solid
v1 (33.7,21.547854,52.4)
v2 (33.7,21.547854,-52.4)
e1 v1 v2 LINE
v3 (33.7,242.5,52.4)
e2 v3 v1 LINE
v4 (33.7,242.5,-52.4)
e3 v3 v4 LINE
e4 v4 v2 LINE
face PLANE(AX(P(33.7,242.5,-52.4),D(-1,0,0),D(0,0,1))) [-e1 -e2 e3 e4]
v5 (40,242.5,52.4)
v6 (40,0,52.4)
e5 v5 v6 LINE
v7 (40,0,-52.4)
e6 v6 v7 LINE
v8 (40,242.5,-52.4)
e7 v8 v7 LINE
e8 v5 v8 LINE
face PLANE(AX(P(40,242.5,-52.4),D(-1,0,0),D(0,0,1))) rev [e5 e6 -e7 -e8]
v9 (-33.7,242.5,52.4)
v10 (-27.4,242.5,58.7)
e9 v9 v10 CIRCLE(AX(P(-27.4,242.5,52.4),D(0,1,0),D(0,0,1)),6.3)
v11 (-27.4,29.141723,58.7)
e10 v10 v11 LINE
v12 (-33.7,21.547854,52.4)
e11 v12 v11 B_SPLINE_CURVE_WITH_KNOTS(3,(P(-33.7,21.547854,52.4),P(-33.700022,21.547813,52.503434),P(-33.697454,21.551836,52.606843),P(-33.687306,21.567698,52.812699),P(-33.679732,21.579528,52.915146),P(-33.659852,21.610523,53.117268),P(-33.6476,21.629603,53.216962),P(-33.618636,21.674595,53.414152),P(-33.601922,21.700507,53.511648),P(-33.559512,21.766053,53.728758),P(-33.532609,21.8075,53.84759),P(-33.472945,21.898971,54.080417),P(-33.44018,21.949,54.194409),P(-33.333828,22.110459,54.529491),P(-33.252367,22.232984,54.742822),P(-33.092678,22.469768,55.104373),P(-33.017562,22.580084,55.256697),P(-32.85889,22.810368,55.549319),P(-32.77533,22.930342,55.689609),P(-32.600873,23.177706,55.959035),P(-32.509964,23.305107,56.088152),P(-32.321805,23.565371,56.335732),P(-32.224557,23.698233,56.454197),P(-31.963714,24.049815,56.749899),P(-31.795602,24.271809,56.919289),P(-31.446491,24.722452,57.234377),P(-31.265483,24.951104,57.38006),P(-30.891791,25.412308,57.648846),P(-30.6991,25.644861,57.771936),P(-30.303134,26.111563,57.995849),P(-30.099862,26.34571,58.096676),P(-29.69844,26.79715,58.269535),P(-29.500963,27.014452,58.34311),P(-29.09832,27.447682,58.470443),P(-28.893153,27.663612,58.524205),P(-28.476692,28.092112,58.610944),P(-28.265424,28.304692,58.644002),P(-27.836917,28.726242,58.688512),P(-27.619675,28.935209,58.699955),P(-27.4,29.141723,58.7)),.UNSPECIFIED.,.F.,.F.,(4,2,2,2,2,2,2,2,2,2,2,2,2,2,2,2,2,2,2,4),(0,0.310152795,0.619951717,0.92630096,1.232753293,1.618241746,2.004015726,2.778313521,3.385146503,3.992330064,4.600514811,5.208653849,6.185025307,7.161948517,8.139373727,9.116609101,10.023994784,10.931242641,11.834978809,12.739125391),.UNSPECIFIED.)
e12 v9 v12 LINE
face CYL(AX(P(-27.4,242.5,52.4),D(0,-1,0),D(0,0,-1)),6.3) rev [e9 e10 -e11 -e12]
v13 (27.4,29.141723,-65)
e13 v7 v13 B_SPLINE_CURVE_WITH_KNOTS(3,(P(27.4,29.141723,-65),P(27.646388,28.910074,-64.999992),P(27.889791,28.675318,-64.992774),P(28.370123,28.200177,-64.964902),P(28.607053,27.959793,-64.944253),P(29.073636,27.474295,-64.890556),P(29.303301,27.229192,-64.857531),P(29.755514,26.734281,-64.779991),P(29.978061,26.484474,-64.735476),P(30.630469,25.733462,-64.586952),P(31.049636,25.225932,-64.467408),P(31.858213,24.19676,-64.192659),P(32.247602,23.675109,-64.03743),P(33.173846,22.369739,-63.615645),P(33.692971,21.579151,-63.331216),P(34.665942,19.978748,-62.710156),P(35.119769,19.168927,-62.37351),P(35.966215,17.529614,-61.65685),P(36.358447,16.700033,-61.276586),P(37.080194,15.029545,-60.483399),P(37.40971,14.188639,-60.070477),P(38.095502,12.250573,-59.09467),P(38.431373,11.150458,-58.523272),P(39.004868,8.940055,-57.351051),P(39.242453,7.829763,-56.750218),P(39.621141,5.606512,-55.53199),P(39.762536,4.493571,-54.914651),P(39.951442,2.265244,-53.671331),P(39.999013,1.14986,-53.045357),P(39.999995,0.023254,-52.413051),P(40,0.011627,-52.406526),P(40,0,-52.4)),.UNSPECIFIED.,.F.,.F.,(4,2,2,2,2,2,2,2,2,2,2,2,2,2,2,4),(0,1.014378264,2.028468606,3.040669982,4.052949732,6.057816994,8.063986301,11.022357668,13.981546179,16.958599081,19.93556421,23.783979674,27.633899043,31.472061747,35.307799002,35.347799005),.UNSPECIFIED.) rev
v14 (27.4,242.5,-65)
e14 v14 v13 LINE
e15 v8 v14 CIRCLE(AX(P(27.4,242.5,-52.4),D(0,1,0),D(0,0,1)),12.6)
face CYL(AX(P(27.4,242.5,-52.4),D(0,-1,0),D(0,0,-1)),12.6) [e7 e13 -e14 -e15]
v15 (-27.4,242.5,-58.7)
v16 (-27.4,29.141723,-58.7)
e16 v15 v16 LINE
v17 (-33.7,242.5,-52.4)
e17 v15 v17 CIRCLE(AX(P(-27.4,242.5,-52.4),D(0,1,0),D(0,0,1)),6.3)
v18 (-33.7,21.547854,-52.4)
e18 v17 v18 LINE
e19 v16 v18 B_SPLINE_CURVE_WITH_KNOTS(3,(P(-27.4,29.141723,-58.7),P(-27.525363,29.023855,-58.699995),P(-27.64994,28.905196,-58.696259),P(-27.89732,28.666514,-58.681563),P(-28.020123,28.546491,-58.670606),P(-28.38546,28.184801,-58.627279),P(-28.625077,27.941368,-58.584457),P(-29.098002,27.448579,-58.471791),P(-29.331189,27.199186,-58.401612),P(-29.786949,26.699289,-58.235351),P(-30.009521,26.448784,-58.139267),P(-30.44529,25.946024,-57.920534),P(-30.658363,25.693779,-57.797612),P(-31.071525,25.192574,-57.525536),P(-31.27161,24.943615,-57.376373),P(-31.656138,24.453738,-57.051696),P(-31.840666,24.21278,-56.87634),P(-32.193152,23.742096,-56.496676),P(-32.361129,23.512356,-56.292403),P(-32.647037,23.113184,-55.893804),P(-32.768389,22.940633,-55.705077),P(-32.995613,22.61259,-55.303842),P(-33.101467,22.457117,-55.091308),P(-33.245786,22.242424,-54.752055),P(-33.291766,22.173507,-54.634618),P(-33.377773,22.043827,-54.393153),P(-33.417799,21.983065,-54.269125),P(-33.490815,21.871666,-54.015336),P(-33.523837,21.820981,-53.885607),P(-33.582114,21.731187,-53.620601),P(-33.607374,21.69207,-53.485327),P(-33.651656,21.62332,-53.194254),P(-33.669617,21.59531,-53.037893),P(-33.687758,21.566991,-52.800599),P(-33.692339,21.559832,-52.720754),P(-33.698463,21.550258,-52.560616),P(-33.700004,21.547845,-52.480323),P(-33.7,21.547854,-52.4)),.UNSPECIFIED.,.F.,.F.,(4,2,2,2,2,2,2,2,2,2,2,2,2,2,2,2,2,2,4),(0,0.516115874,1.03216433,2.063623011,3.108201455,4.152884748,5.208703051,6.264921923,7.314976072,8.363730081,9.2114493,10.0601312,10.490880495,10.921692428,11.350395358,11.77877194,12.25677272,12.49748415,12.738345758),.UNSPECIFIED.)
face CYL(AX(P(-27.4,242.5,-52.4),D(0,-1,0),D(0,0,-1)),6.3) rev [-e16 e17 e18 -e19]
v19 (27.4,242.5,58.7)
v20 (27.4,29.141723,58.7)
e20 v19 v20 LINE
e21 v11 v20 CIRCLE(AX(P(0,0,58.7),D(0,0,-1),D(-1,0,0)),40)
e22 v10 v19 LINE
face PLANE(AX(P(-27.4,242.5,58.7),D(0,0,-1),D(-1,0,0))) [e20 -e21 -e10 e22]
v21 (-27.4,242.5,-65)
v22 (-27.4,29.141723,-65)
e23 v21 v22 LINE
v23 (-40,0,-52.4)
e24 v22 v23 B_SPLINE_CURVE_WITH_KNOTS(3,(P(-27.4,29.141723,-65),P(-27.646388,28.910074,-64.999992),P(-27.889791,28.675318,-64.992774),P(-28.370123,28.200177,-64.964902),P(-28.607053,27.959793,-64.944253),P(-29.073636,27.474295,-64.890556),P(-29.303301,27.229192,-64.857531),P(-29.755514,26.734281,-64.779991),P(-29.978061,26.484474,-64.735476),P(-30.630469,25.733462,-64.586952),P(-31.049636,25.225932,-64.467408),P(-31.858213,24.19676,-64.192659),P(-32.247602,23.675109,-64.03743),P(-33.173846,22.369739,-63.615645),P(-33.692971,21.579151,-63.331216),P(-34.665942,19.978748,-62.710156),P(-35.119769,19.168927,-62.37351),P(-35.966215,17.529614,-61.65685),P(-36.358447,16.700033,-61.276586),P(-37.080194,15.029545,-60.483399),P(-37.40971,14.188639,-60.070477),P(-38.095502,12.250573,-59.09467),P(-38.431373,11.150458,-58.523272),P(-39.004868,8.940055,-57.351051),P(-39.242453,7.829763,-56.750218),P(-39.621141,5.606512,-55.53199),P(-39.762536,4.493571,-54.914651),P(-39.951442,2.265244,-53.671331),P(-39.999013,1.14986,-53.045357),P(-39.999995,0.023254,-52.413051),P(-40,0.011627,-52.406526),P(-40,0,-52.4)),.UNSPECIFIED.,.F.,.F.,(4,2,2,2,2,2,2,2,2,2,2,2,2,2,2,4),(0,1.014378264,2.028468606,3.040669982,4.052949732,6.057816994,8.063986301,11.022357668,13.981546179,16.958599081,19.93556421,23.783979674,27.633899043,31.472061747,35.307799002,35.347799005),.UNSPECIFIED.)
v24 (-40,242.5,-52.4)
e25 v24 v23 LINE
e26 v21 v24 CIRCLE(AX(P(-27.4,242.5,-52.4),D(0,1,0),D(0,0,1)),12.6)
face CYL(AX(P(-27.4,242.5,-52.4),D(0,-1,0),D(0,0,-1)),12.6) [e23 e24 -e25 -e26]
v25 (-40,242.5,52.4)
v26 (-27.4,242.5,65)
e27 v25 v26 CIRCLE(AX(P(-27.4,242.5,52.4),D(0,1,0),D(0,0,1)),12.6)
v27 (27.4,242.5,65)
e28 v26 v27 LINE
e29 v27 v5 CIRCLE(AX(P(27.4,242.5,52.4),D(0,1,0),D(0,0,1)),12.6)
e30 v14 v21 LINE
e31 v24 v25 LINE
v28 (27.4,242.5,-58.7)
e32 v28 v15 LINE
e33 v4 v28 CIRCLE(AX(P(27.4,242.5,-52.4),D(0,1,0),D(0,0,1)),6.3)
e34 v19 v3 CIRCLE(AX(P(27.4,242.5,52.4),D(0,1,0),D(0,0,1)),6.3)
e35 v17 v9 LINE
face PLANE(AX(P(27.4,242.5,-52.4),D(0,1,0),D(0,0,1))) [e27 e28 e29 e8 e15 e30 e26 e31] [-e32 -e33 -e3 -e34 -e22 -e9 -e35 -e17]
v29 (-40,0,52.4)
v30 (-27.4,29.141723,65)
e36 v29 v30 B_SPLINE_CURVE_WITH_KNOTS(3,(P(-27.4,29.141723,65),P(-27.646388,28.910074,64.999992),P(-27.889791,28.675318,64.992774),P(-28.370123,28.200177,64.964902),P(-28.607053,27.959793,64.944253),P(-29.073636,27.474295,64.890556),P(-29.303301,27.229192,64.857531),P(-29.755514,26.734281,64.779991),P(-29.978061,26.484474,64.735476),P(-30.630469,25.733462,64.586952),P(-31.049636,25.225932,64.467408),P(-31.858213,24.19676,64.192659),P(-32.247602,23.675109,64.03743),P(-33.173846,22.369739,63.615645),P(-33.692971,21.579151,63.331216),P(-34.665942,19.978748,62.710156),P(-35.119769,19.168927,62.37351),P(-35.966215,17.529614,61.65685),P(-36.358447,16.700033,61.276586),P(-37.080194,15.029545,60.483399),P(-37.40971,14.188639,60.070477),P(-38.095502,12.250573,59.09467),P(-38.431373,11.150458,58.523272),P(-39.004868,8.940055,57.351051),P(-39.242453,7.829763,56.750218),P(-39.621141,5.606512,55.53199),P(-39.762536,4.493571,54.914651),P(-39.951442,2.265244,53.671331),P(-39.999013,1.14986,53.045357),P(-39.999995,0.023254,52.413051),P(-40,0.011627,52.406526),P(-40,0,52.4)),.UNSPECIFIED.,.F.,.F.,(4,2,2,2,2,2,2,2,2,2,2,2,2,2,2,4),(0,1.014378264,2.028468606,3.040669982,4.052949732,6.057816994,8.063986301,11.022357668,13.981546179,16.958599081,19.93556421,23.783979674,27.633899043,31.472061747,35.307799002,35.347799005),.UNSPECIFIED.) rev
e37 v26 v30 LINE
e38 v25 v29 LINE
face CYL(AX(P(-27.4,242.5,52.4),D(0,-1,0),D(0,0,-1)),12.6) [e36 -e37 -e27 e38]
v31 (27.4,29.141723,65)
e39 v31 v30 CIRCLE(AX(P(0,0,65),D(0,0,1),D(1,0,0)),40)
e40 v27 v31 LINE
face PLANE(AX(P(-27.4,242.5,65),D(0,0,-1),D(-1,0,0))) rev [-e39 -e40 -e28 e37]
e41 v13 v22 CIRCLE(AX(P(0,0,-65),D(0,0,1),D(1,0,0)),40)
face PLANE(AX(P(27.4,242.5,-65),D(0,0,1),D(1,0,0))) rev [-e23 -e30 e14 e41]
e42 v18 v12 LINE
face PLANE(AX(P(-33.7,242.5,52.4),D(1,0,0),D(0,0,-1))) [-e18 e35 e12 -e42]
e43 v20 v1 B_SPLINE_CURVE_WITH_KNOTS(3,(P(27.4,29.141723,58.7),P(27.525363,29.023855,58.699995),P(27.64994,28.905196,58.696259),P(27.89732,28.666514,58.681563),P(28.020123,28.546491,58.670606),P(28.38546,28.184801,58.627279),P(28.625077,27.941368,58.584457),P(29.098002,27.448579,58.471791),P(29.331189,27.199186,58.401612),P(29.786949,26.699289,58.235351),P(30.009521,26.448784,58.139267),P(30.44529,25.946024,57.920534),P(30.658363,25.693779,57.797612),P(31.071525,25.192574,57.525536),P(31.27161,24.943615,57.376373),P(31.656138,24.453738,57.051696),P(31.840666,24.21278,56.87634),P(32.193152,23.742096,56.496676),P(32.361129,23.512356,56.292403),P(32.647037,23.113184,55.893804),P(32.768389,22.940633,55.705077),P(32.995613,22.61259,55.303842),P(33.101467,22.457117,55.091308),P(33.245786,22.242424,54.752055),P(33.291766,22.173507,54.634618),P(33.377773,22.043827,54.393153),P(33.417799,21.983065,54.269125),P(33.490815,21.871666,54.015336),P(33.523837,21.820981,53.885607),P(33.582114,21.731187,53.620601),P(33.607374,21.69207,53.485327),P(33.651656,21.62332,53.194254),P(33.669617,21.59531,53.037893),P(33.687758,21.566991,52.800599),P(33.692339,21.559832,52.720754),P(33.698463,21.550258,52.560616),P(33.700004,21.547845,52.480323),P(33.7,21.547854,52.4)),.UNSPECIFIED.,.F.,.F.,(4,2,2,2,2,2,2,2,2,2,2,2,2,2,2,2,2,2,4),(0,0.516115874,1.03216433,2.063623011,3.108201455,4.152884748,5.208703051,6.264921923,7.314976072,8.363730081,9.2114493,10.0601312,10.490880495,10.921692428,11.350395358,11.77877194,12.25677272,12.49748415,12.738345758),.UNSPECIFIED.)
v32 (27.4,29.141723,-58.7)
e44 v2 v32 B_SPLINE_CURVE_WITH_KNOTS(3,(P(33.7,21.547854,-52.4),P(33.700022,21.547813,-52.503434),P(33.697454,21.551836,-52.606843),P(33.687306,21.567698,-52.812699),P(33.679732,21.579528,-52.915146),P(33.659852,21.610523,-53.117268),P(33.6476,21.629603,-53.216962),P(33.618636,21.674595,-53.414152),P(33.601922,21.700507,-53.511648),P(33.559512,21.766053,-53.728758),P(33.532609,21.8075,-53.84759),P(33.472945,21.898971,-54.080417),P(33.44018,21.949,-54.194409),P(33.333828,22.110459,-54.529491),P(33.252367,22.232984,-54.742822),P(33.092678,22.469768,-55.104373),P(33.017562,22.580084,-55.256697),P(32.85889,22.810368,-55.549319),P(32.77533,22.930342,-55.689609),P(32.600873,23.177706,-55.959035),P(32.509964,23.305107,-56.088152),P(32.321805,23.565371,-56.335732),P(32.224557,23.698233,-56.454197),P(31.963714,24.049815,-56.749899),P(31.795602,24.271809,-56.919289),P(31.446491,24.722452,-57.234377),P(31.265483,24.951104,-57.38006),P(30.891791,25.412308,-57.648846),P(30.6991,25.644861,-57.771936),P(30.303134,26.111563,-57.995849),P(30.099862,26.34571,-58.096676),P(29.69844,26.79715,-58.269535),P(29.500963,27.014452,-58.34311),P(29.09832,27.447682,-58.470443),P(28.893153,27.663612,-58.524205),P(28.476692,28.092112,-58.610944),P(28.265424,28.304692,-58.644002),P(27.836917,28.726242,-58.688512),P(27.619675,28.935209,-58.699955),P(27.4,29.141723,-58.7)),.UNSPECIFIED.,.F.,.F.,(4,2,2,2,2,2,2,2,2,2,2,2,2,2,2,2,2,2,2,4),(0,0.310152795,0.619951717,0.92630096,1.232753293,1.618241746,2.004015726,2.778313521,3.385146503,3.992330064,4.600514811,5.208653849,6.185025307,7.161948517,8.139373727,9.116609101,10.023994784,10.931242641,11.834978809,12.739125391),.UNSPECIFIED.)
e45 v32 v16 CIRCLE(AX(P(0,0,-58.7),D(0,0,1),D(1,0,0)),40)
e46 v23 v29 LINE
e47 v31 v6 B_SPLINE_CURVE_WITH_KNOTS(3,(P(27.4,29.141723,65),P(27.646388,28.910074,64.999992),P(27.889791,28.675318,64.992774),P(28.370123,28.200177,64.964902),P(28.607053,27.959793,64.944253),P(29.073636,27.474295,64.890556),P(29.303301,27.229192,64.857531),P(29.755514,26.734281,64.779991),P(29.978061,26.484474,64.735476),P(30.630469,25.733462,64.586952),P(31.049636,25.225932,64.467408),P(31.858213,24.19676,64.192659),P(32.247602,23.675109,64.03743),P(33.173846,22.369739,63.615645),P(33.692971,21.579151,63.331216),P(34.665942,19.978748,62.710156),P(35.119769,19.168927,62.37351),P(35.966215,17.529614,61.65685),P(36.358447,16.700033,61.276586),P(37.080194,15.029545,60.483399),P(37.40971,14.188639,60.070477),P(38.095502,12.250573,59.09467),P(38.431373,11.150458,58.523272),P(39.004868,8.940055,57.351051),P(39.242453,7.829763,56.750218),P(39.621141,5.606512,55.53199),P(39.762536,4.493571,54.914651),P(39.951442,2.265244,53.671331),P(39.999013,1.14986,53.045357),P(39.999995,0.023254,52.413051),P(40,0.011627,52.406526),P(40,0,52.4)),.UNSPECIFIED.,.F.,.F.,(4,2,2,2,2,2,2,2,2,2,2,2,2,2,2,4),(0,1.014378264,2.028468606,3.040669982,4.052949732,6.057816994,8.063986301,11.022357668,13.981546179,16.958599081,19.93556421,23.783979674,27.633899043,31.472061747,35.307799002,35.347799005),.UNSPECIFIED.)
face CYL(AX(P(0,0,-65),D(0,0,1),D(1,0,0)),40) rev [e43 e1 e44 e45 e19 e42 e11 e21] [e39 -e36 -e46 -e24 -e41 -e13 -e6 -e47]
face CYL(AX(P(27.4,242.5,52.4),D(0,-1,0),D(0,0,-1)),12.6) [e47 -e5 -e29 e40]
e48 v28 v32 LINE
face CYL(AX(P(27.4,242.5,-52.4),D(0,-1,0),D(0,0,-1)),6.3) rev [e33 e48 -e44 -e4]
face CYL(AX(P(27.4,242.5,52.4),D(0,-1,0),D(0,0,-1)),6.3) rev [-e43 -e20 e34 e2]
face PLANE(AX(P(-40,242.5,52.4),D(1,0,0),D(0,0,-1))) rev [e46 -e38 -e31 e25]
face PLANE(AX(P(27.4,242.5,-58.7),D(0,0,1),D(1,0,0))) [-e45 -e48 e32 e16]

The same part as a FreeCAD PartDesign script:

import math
import FreeCAD as App
import Part
import Sketcher
from FreeCAD import Vector

doc = App.newDocument("Part")
body = doc.addObject("PartDesign::Body", "Body")

sketch1 = body.newObject("Sketcher::SketchObject", "Sketch")
sketch1.AttachmentSupport = (doc.getObject("XZ_Plane"), [""])
sketch1.MapMode = "FlatFace"
sketch1.addGeometry([
    Part.LineSegment(Vector(-27, 65, 0), Vector(27, 65, 0)),
    Part.ArcOfCircle(Part.Circle(Vector(27, 52, 0), Vector(0, 0, 1), 13), math.radians(0), math.radians(90)),
    Part.LineSegment(Vector(40, 52, 0), Vector(40, -52, 0)),
    Part.ArcOfCircle(Part.Circle(Vector(27, -52, 0), Vector(0, 0, 1), 13), math.radians(-90), math.radians(0)),
    Part.LineSegment(Vector(27, -65, 0), Vector(-27, -65, 0)),
    Part.ArcOfCircle(Part.Circle(Vector(-27, -52, 0), Vector(0, 0, 1), 13), math.radians(180), math.radians(270)),
    Part.LineSegment(Vector(-40, -52, 0), Vector(-40, 52, 0)),
    Part.ArcOfCircle(Part.Circle(Vector(-27, 52, 0), Vector(0, 0, 1), 13), math.radians(90), math.radians(180)),
    Part.LineSegment(Vector(27, 59, 0), Vector(-27, 59, 0)),
    Part.ArcOfCircle(Part.Circle(Vector(-27, 52, 0), Vector(0, 0, 1), 6), math.radians(90), math.radians(180)),
    Part.LineSegment(Vector(-34, 52, 0), Vector(-34, -52, 0)),
    Part.ArcOfCircle(Part.Circle(Vector(-27, -52, 0), Vector(0, 0, 1), 6), math.radians(180), math.radians(270)),
    Part.LineSegment(Vector(-27, -59, 0), Vector(27, -59, 0)),
    Part.ArcOfCircle(Part.Circle(Vector(27, -52, 0), Vector(0, 0, 1), 6), math.radians(-90), math.radians(0)),
    Part.LineSegment(Vector(34, -52, 0), Vector(34, 52, 0)),
    Part.ArcOfCircle(Part.Circle(Vector(27, 52, 0), Vector(0, 0, 1), 6), math.radians(0), math.radians(90)),
], False)
sketch1.addConstraint([
    Sketcher.Constraint("Tangent", 0, 2, 1, 2),
    Sketcher.Constraint("Tangent", 1, 1, 2, 1),
    Sketcher.Constraint("Tangent", 2, 2, 3, 2),
    Sketcher.Constraint("Tangent", 3, 1, 4, 1),
    Sketcher.Constraint("Tangent", 4, 2, 5, 2),
    Sketcher.Constraint("Tangent", 5, 1, 6, 1),
    Sketcher.Constraint("Tangent", 6, 2, 7, 2),
    Sketcher.Constraint("Tangent", 7, 1, 0, 1),
    Sketcher.Constraint("Tangent", 8, 2, 9, 1),
    Sketcher.Constraint("Tangent", 9, 2, 10, 1),
    Sketcher.Constraint("Tangent", 10, 2, 11, 1),
    Sketcher.Constraint("Tangent", 11, 2, 12, 1),
    Sketcher.Constraint("Tangent", 12, 2, 13, 1),
    Sketcher.Constraint("Tangent", 13, 2, 14, 1),
    Sketcher.Constraint("Tangent", 14, 2, 15, 1),
    Sketcher.Constraint("Tangent", 15, 2, 8, 1),
    Sketcher.Constraint("Horizontal", 0),
    Sketcher.Constraint("Vertical", 2),
    Sketcher.Constraint("Horizontal", 4),
    Sketcher.Constraint("Vertical", 6),
    Sketcher.Constraint("Horizontal", 8),
    Sketcher.Constraint("Vertical", 10),
    Sketcher.Constraint("Horizontal", 12),
    Sketcher.Constraint("Vertical", 14),
    Sketcher.Constraint("Coincident", 9, 3, 7, 3),
    Sketcher.Constraint("Coincident", 11, 3, 5, 3),
    Sketcher.Constraint("Coincident", 13, 3, 3, 3),
    Sketcher.Constraint("Equal", 1, 3),
    Sketcher.Constraint("Equal", 3, 5),
    Sketcher.Constraint("Equal", 5, 7),
    Sketcher.Constraint("Equal", 13, 15),
    Sketcher.Constraint("Symmetric", 1, 3, 5, 3, -1, 1),
    Sketcher.Constraint("Radius", 1, 12.6),
    Sketcher.Constraint("Radius", 9, 6.3),
    Sketcher.Constraint("DistanceX", 0, 1, 0, 2, 54.8),
    Sketcher.Constraint("DistanceY", 2, 2, 2, 1, 104.8),
])
pad1 = body.newObject("PartDesign::Pad", "Pad")
pad1.Profile = sketch1
pad1.Length = 242.5
pad1.Reversed = True

sketch2 = body.newObject("Sketcher::SketchObject", "Sketch001")
sketch2.AttachmentSupport = (doc.getObject("XY_Plane"), [""])
sketch2.MapMode = "FlatFace"
sketch2.addGeometry(Part.Circle(Vector(0, 0, 0), Vector(0, 0, 1), 40), False)
sketch2.addConstraint([
    Sketcher.Constraint("Coincident", 0, 3, -1, 1),
    Sketcher.Constraint("Diameter", 0, 80.0),
])
pocket1 = body.newObject("PartDesign::Pocket", "Pocket")
pocket1.Profile = sketch2
pocket1.Type = "ThroughAll"
pocket1.Midplane = True

doc.recompute()
